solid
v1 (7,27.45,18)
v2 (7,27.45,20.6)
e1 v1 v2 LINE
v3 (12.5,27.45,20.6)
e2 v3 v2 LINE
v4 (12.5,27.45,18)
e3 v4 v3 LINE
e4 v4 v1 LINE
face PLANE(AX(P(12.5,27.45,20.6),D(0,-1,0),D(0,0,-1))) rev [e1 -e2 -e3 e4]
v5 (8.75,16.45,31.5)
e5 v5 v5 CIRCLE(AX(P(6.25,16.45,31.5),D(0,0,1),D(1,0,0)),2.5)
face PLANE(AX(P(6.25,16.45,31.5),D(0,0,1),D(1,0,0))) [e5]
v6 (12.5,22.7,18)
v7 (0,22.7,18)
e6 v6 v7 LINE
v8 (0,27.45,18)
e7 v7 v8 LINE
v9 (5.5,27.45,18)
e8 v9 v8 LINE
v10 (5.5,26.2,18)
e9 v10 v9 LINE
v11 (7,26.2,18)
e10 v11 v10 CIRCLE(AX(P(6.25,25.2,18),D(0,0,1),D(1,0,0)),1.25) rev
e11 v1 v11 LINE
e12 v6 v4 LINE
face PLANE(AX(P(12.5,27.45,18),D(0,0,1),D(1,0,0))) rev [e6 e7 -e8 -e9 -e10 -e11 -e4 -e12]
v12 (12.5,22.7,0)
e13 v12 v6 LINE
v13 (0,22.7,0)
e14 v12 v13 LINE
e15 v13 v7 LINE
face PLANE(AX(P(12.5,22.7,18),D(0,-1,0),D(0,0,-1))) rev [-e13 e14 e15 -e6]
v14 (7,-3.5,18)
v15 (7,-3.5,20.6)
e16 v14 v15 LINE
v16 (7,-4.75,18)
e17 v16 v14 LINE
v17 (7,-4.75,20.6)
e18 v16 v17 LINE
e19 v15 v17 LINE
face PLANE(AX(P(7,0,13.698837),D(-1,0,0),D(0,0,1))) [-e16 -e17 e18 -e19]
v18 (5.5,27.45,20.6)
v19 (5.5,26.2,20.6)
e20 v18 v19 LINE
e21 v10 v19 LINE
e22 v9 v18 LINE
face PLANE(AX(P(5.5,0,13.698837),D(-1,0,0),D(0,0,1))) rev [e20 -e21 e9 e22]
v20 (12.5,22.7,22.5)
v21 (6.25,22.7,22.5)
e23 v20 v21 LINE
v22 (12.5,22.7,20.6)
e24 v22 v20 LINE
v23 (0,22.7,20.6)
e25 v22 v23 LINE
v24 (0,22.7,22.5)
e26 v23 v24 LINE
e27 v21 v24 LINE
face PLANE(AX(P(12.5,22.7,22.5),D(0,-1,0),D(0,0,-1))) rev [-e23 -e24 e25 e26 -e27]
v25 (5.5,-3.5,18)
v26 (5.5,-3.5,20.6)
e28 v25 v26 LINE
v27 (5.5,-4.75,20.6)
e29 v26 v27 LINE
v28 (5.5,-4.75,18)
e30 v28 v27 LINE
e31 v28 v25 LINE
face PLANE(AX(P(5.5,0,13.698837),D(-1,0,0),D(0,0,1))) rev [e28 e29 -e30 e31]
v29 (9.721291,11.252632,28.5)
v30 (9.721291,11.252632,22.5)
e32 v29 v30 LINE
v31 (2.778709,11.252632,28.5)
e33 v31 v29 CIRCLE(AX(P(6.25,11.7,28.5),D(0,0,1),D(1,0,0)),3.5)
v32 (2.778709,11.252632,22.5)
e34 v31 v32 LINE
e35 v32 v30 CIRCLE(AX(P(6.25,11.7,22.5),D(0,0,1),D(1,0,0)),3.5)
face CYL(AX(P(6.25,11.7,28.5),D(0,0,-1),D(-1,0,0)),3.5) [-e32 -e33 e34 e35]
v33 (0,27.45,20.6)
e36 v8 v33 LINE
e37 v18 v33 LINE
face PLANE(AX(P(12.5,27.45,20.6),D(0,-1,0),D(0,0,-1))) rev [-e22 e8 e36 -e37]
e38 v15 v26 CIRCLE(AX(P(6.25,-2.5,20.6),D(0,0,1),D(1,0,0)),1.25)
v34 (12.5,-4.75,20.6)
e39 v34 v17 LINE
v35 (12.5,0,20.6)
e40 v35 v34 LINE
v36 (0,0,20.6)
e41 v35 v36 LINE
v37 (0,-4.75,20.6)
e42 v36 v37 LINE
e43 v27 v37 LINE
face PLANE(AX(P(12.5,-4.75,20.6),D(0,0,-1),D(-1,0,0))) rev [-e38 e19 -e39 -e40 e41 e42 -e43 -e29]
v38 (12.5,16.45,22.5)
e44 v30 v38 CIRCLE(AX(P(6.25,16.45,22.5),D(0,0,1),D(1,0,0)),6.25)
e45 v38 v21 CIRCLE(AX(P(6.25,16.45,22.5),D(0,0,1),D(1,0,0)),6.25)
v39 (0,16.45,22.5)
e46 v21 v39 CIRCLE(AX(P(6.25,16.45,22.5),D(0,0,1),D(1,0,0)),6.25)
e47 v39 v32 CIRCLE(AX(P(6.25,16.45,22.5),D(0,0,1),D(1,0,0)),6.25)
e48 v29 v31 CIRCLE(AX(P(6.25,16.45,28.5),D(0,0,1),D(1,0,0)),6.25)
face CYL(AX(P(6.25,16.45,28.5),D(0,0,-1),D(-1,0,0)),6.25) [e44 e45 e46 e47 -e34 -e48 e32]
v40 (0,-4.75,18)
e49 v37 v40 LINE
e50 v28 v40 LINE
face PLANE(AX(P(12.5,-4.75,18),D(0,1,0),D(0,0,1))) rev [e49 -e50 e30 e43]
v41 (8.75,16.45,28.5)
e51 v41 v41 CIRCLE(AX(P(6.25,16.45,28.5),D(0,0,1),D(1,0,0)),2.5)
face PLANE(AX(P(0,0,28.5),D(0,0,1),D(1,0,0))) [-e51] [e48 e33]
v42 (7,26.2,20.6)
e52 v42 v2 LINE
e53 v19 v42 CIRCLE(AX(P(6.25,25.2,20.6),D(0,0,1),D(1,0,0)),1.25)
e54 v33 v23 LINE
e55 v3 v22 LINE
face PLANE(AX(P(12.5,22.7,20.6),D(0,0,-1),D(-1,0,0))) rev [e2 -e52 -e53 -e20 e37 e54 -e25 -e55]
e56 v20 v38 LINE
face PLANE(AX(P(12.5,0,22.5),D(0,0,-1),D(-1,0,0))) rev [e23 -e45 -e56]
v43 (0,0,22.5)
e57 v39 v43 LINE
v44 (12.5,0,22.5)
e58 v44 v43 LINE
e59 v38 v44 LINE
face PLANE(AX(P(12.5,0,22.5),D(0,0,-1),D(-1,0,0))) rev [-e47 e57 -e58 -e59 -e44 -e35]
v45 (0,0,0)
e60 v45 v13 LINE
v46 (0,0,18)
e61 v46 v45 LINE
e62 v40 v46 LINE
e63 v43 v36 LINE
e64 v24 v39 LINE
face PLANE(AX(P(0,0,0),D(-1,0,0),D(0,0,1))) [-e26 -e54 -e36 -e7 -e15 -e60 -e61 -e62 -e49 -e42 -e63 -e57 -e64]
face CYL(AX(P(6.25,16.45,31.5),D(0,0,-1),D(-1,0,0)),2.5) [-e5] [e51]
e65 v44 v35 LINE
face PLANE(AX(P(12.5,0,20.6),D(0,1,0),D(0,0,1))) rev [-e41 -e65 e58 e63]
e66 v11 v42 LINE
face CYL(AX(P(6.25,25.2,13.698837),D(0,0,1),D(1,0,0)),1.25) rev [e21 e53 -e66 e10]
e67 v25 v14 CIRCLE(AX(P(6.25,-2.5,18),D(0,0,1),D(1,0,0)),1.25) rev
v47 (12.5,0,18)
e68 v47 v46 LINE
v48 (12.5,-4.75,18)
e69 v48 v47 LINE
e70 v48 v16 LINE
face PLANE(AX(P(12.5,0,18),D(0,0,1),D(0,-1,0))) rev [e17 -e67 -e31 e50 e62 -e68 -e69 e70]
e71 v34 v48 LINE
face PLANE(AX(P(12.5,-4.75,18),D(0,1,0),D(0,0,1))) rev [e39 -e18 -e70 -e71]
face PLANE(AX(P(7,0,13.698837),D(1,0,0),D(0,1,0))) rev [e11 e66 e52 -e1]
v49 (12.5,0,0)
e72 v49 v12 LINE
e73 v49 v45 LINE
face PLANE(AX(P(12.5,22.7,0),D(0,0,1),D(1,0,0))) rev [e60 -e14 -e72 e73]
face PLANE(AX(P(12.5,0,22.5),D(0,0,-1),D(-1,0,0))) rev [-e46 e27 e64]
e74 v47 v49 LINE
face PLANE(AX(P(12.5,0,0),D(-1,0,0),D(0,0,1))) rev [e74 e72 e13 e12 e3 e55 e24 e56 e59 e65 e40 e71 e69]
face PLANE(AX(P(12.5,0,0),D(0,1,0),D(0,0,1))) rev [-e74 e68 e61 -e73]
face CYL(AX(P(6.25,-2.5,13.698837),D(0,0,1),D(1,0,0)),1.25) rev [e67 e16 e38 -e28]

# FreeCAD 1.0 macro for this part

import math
import FreeCAD as App
import Part
import Sketcher
from FreeCAD import Vector
Q = App.Units.Quantity

doc = App.newDocument("Part")
params = doc.addObject("Spreadsheet::Sheet", "Params")
for row, (alias, value) in enumerate([
    ("sketch1_height", "18 mm"),
    ("sketch1_width", "22.7 mm"),
    ("sketch1_height2", "2.6 mm"),
    ("sketch1_height3", "1.9 mm"),
    ("sketch1_width2", "4.75 mm"),
    ("pad1_length", "12.5 mm"),
    ("sketch2_radius", "3.5 mm"),
    ("sketch2_radius2", "6.25 mm"),
    ("pad2_length", "6 mm"),
    ("sketch3_diameter", "5 mm"),
    ("pad3_length", "3 mm"),
    ("sketch4_radius", "1.25 mm"),
    ("sketch4_width", "1.5 mm"),
    ("sketch4_height", "1.25 mm"),
    ("pocket1_length", "2.6 mm"),
], start=1):
    params.set(f"A{row}", alias)
    params.set(f"B{row}", "=" + value)
    params.setAlias(f"B{row}", alias)

body = doc.addObject("PartDesign::Body", "Body")

# Sketch on YZ plane
sketch1 = doc.addObject("Sketcher::SketchObject", "Sketch")
body.addObject(sketch1)
sketch1.AttachmentSupport = (doc.YZ_Plane, [""])
sketch1.MapMode = "FlatFace"
sketch1.addGeometry(Part.LineSegment(Vector(0, 18, 0), Vector(0, 0, 0)), False)
sketch1.addGeometry(Part.LineSegment(Vector(0, 0, 0), Vector(22.7, 0, 0)), False)
sketch1.addGeometry(Part.LineSegment(Vector(22.7, 0, 0), Vector(22.7, 18, 0)), False)
sketch1.addGeometry(Part.LineSegment(Vector(22.7, 18, 0), Vector(27.4, 18, 0)), False)
sketch1.addGeometry(Part.LineSegment(Vector(27.4, 18, 0), Vector(27.4, 20.6, 0)), False)
sketch1.addGeometry(Part.LineSegment(Vector(27.4, 20.6, 0), Vector(22.7, 20.6, 0)), False)
sketch1.addGeometry(Part.LineSegment(Vector(22.7, 20.6, 0), Vector(22.7, 22.5, 0)), False)
sketch1.addGeometry(Part.LineSegment(Vector(22.7, 22.5, 0), Vector(0, 22.5, 0)), False)
sketch1.addGeometry(Part.LineSegment(Vector(0, 22.5, 0), Vector(0, 20.6, 0)), False)
sketch1.addGeometry(Part.LineSegment(Vector(0, 20.6, 0), Vector(-4.8, 20.6, 0)), False)
sketch1.addGeometry(Part.LineSegment(Vector(-4.8, 20.6, 0), Vector(-4.8, 18, 0)), False)
sketch1.addGeometry(Part.LineSegment(Vector(-4.8, 18, 0), Vector(0, 18, 0)), False)
sketch1.addConstraint(Sketcher.Constraint("Coincident", 0, 2, 1, 1))
sketch1.addConstraint(Sketcher.Constraint("Coincident", 1, 2, 2, 1))
sketch1.addConstraint(Sketcher.Constraint("Coincident", 2, 2, 3, 1))
sketch1.addConstraint(Sketcher.Constraint("Coincident", 3, 2, 4, 1))
sketch1.addConstraint(Sketcher.Constraint("Coincident", 4, 2, 5, 1))
sketch1.addConstraint(Sketcher.Constraint("Coincident", 5, 2, 6, 1))
sketch1.addConstraint(Sketcher.Constraint("Coincident", 6, 2, 7, 1))
sketch1.addConstraint(Sketcher.Constraint("Coincident", 7, 2, 8, 1))
sketch1.addConstraint(Sketcher.Constraint("Coincident", 8, 2, 9, 1))
sketch1.addConstraint(Sketcher.Constraint("Coincident", 9, 2, 10, 1))
sketch1.addConstraint(Sketcher.Constraint("Coincident", 10, 2, 11, 1))
sketch1.addConstraint(Sketcher.Constraint("Coincident", 11, 2, 0, 1))
sketch1.addConstraint(Sketcher.Constraint("Vertical", 0))
sketch1.addConstraint(Sketcher.Constraint("Horizontal", 1))
sketch1.addConstraint(Sketcher.Constraint("Vertical", 2))
sketch1.addConstraint(Sketcher.Constraint("Horizontal", 3))
sketch1.addConstraint(Sketcher.Constraint("Vertical", 4))
sketch1.addConstraint(Sketcher.Constraint("Horizontal", 5))
sketch1.addConstraint(Sketcher.Constraint("Vertical", 6))
sketch1.addConstraint(Sketcher.Constraint("Horizontal", 7))
sketch1.addConstraint(Sketcher.Constraint("Vertical", 8))
sketch1.addConstraint(Sketcher.Constraint("Horizontal", 9))
sketch1.addConstraint(Sketcher.Constraint("Vertical", 10))
sketch1.addConstraint(Sketcher.Constraint("Horizontal", 11))
sketch1.addConstraint(Sketcher.Constraint("Coincident", 0, 2, -1, 1))
sketch1.addConstraint(Sketcher.Constraint("PointOnObject", 7, 2, -2))
sketch1.addConstraint(Sketcher.Constraint("Horizontal", 5, 2, 8, 2))
sketch1.addConstraint(Sketcher.Constraint("Horizontal", 3, 2, 10, 2))
sketch1.addConstraint(Sketcher.Constraint("Vertical", 2, 2, 5, 2))
sketch1.addConstraint(Sketcher.Constraint("Equal", 5, 9))
sketch1.addConstraint(Sketcher.Constraint("DistanceY", 0, 2, 0, 1, Q("18 mm")))
sketch1.addConstraint(Sketcher.Constraint("DistanceX", 1, 1, 1, 2, Q("22.7 mm")))
sketch1.addConstraint(Sketcher.Constraint("DistanceY", 4, 1, 4, 2, Q("2.6 mm")))
sketch1.addConstraint(Sketcher.Constraint("DistanceY", 6, 1, 6, 2, Q("1.9 mm")))
sketch1.addConstraint(Sketcher.Constraint("DistanceX", 3, 1, 3, 2, Q("4.75 mm")))
sketch1.setExpression("Constraints[30]", "Params.sketch1_height")
sketch1.setExpression("Constraints[31]", "Params.sketch1_width")
sketch1.setExpression("Constraints[32]", "Params.sketch1_height2")
sketch1.setExpression("Constraints[33]", "Params.sketch1_height3")
sketch1.setExpression("Constraints[34]", "Params.sketch1_width2")
pad1 = doc.addObject("PartDesign::Pad", "Pad")
body.addObject(pad1)
pad1.Profile = sketch1
pad1.setExpression("Length", "Params.pad1_length")

# Sketch on XY plane
sketch2 = doc.addObject("Sketcher::SketchObject", "Sketch001")
body.addObject(sketch2)
sketch2.AttachmentSupport = (doc.XY_Plane, [""])
sketch2.MapMode = "FlatFace"
sketch2.AttachmentOffset = App.Placement(Vector(0, 0, 22.5), App.Rotation())
sketch2.addGeometry(Part.ArcOfCircle(Part.Circle(Vector(6.3, 11.7, 0), Vector(0, 0, 1), 3.5), math.radians(-173), math.radians(-90)), False)
sketch2.addGeometry(Part.ArcOfCircle(Part.Circle(Vector(6.2, 11.7, 0), Vector(0, 0, 1), 3.5), math.radians(-90), math.radians(-7)), False)
sketch2.addGeometry(Part.ArcOfCircle(Part.Circle(Vector(6.3, 16.4, 0), Vector(0, 0, 1), 6.2), math.radians(-56), math.radians(0)), False)
sketch2.addGeometry(Part.ArcOfCircle(Part.Circle(Vector(6.2, 16.4, 0), Vector(0, 0, 1), 6.3), math.radians(0), math.radians(90)), False)
sketch2.addGeometry(Part.ArcOfCircle(Part.Circle(Vector(6.2, 16.4, 0), Vector(0, 0, 1), 6.2), math.radians(90), math.radians(236)), False)
sketch2.addConstraint(Sketcher.Constraint("Tangent", 0, 2, 1, 1))
sketch2.addConstraint(Sketcher.Constraint("Coincident", 1, 2, 2, 1))
sketch2.addConstraint(Sketcher.Constraint("Tangent", 2, 2, 3, 1))
sketch2.addConstraint(Sketcher.Constraint("Tangent", 3, 2, 4, 1))
sketch2.addConstraint(Sketcher.Constraint("Coincident", 4, 2, 0, 1))
sketch2.addConstraint(Sketcher.Constraint("Coincident", 4, 3, 2, 3))
sketch2.addConstraint(Sketcher.Constraint("Equal", 0, 1))
sketch2.addConstraint(Sketcher.Constraint("Horizontal", 4, 3, 2, 2))
sketch2.addConstraint(Sketcher.Constraint("Horizontal", 1, 2, 4, 2))
sketch2.addConstraint(Sketcher.Constraint("Vertical", 4, 3, 0, 2))
sketch2.addConstraint(Sketcher.Constraint("Vertical", 0, 2, 3, 2))
sketch2.addConstraint(Sketcher.Constraint("Radius", 0, Q("3.5 mm")))
sketch2.addConstraint(Sketcher.Constraint("Radius", 2, Q("6.25 mm")))
sketch2.addConstraint(Sketcher.Constraint("DistanceY", 0, 3, 3, 2, Q("11 mm")))
sketch2.addConstraint(Sketcher.Constraint("DistanceY", -1, 1, 0, 3, Q("11.7 mm")))
sketch2.addConstraint(Sketcher.Constraint("DistanceX", -1, 1, 2, 2, Q("12.5 mm")))
sketch2.setExpression("Constraints[11]", "Params.sketch2_radius")
sketch2.setExpression("Constraints[12]", "Params.sketch2_radius2")
pad2 = doc.addObject("PartDesign::Pad", "Pad001")
body.addObject(pad2)
pad2.Profile = sketch2
pad2.setExpression("Length", "Params.pad2_length")

# Sketch on XY plane
sketch3 = doc.addObject("Sketcher::SketchObject", "Sketch002")
body.addObject(sketch3)
sketch3.AttachmentSupport = (doc.XY_Plane, [""])
sketch3.MapMode = "FlatFace"
sketch3.AttachmentOffset = App.Placement(Vector(0, 0, 28.5), App.Rotation())
sketch3.addGeometry(Part.Circle(Vector(6.2, 16.4, 0), Vector(0, 0, 1), 2.5), False)
sketch3.addConstraint(Sketcher.Constraint("Diameter", 0, Q("5 mm")))
sketch3.addConstraint(Sketcher.Constraint("DistanceX", -1, 1, 0, 3, Q("6.25 mm")))
sketch3.addConstraint(Sketcher.Constraint("DistanceY", -1, 1, 0, 3, Q("16.45 mm")))
sketch3.setExpression("Constraints[0]", "Params.sketch3_diameter")
pad3 = doc.addObject("PartDesign::Pad", "Pad002")
body.addObject(pad3)
pad3.Profile = sketch3
pad3.setExpression("Length", "Params.pad3_length")

# Sketch on XY plane
sketch4 = doc.addObject("Sketcher::SketchObject", "Sketch003")
body.addObject(sketch4)
sketch4.AttachmentSupport = (doc.XY_Plane, [""])
sketch4.MapMode = "FlatFace"
sketch4.AttachmentOffset = App.Placement(Vector(0, 0, 20.6), App.Rotation())
sketch4.addGeometry(Part.LineSegment(Vector(7, 27.4, 0), Vector(5.5, 27.4, 0)), False)
sketch4.addGeometry(Part.LineSegment(Vector(5.5, 27.4, 0), Vector(5.5, 26.2, 0)), False)
sketch4.addGeometry(Part.ArcOfCircle(Part.Circle(Vector(6.2, 25.2, 0), Vector(0, 0, 1), 1.2), math.radians(127), math.radians(413)), False)
sketch4.addGeometry(Part.LineSegment(Vector(7, 26.2, 0), Vector(7, 27.4, 0)), False)
sketch4.addGeometry(Part.LineSegment(Vector(5.5, -3.5, 0), Vector(5.5, -4.8, 0)), False)
sketch4.addGeometry(Part.LineSegment(Vector(5.5, -4.8, 0), Vector(7, -4.8, 0)), False)
sketch4.addGeometry(Part.LineSegment(Vector(7, -4.8, 0), Vector(7, -3.5, 0)), False)
sketch4.addGeometry(Part.ArcOfCircle(Part.Circle(Vector(6.2, -2.5, 0), Vector(0, 0, 1), 1.2), math.radians(-53), math.radians(233)), False)
sketch4.addConstraint(Sketcher.Constraint("Coincident", 0, 2, 1, 1))
sketch4.addConstraint(Sketcher.Constraint("Coincident", 1, 2, 2, 1))
sketch4.addConstraint(Sketcher.Constraint("Coincident", 2, 2, 3, 1))
sketch4.addConstraint(Sketcher.Constraint("Coincident", 3, 2, 0, 1))
sketch4.addConstraint(Sketcher.Constraint("Coincident", 4, 2, 5, 1))
sketch4.addConstraint(Sketcher.Constraint("Coincident", 5, 2, 6, 1))
sketch4.addConstraint(Sketcher.Constraint("Coincident", 6, 2, 7, 1))
sketch4.addConstraint(Sketcher.Constraint("Coincident", 7, 2, 4, 1))
sketch4.addConstraint(Sketcher.Constraint("Horizontal", 0))
sketch4.addConstraint(Sketcher.Constraint("Vertical", 1))
sketch4.addConstraint(Sketcher.Constraint("Vertical", 3))
sketch4.addConstraint(Sketcher.Constraint("Vertical", 4))
sketch4.addConstraint(Sketcher.Constraint("Horizontal", 5))
sketch4.addConstraint(Sketcher.Constraint("Vertical", 6))
sketch4.addConstraint(Sketcher.Constraint("Equal", 2, 7))
sketch4.addConstraint(Sketcher.Constraint("Horizontal", 1, 2, 2, 2))
sketch4.addConstraint(Sketcher.Constraint("Horizontal", 6, 2, 7, 2))
sketch4.addConstraint(Sketcher.Constraint("Vertical", 2, 3, 7, 3))
sketch4.addConstraint(Sketcher.Constraint("Vertical", 1, 2, 4, 2))
sketch4.addConstraint(Sketcher.Constraint("Equal", 3, 4))
sketch4.addConstraint(Sketcher.Constraint("Radius", 2, Q("1.25 mm")))
sketch4.addConstraint(Sketcher.Constraint("DistanceX", 0, 2, 0, 1, Q("1.5 mm")))
sketch4.addConstraint(Sketcher.Constraint("DistanceX", -1, 1, 2, 2, Q("7 mm")))
sketch4.addConstraint(Sketcher.Constraint("DistanceY", 1, 2, 1, 1, Q("1.25 mm")))
sketch4.addConstraint(Sketcher.Constraint("DistanceY", -1, 1, 2, 3, Q("25.2 mm")))
sketch4.addConstraint(Sketcher.Constraint("DistanceY", 7, 3, -1, 1, Q("2.5 mm")))
sketch4.setExpression("Constraints[20]", "Params.sketch4_radius")
sketch4.setExpression("Constraints[21]", "Params.sketch4_width")
sketch4.setExpression("Constraints[23]", "Params.sketch4_height")
pocket1 = doc.addObject("PartDesign::Pocket", "Pocket")
body.addObject(pocket1)
pocket1.Profile = sketch4
pocket1.setExpression("Length", "Params.pocket1_length")

doc.recompute()
